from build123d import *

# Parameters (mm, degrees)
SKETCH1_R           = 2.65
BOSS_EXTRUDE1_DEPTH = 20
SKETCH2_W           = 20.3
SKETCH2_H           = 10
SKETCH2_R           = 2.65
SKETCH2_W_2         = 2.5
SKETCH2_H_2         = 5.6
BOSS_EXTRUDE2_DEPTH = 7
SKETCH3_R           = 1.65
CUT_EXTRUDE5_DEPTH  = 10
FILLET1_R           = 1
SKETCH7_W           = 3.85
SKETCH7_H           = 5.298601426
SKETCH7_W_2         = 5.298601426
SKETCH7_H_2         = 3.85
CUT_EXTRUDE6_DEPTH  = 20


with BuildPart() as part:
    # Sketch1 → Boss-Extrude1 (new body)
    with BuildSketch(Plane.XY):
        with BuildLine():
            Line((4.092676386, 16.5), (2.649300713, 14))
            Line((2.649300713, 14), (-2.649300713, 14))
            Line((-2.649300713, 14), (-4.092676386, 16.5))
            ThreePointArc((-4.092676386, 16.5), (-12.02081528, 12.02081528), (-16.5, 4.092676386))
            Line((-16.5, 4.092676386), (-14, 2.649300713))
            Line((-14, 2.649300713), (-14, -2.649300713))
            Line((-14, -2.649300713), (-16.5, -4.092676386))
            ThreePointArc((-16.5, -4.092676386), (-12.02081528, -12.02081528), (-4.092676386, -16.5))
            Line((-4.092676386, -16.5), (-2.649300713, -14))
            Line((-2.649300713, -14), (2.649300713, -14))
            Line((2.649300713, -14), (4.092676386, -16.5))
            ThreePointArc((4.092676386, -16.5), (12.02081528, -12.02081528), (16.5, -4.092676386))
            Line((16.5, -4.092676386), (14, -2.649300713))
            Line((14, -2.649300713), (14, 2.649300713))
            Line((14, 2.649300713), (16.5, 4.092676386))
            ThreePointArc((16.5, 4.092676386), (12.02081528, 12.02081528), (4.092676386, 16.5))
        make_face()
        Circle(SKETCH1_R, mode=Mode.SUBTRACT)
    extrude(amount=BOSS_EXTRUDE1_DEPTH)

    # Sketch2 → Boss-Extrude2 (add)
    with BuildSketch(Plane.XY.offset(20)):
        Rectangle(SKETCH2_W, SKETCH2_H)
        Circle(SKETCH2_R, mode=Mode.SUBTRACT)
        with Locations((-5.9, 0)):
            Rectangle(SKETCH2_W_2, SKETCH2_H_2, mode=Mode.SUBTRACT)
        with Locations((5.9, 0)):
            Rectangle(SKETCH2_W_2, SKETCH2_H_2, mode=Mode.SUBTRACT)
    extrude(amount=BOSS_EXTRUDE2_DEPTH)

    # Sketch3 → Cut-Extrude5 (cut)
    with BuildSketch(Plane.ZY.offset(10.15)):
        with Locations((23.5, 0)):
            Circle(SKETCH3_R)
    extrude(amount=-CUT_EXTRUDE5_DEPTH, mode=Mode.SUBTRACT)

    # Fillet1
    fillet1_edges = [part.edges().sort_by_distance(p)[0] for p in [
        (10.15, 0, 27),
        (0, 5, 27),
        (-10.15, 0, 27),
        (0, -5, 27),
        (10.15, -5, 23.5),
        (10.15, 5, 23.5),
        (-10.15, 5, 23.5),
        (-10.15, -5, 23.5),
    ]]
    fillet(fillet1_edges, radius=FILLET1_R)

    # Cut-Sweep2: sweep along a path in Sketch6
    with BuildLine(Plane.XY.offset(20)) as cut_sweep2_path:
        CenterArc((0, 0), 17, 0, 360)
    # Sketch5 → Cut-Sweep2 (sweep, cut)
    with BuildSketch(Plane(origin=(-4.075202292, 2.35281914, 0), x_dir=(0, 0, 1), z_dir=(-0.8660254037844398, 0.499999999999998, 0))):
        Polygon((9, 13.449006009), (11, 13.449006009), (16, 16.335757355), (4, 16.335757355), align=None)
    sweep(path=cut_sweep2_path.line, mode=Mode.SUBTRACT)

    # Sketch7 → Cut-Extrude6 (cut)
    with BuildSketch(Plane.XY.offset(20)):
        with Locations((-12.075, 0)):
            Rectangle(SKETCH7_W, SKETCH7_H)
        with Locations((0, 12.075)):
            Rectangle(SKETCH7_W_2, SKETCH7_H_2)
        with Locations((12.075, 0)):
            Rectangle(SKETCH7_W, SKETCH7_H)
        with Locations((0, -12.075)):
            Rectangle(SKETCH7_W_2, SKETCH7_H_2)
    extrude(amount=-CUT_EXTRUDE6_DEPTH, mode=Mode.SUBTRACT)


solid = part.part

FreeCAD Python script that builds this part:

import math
import FreeCAD as App
import Part
import Sketcher
Q = App.Units.Quantity


def edges_at(feature, points):
    """Names of the edges that pass closest to the given points."""
    edges = feature.Shape.Edges
    near = lambda p: min(range(len(edges)), key=lambda i: edges[i].distToShape(Part.Vertex(*p))[0])
    return sorted({f"Edge{near(p) + 1}" for p in points})

doc = App.newDocument("Part")
body = doc.addObject("PartDesign::Body", "Body")

sketch1 = body.newObject("Sketcher::SketchObject", "Sketch")
sketch1.AttachmentSupport = (doc.getObject("XY_Plane"), [""])
sketch1.MapMode = "FlatFace"
sketch1.addGeometry([
    Part.LineSegment(App.Vector(4.092676, 16.5, 0), App.Vector(2.649301, 14, 0)),
    Part.LineSegment(App.Vector(2.649301, 14, 0), App.Vector(-2.649301, 14, 0)),
    Part.LineSegment(App.Vector(-2.649301, 14, 0), App.Vector(-4.092676, 16.5, 0)),
    Part.ArcOfCircle(Part.Circle(App.Vector(0, 0, 0), App.Vector(0, 0, 1), 17), math.radians(103.930555), math.radians(166.069445)),
    Part.LineSegment(App.Vector(-16.5, 4.092676, 0), App.Vector(-14, 2.649301, 0)),
    Part.LineSegment(App.Vector(-14, 2.649301, 0), App.Vector(-14, -2.649301, 0)),
    Part.LineSegment(App.Vector(-14, -2.649301, 0), App.Vector(-16.5, -4.092676, 0)),
    Part.ArcOfCircle(Part.Circle(App.Vector(0, 0, 0), App.Vector(0, 0, 1), 17), math.radians(-166.069445), math.radians(-103.930555)),
    Part.LineSegment(App.Vector(-4.092676, -16.5, 0), App.Vector(-2.649301, -14, 0)),
    Part.LineSegment(App.Vector(-2.649301, -14, 0), App.Vector(2.649301, -14, 0)),
    Part.LineSegment(App.Vector(2.649301, -14, 0), App.Vector(4.092676, -16.5, 0)),
    Part.ArcOfCircle(Part.Circle(App.Vector(0, 0, 0), App.Vector(0, 0, 1), 17), math.radians(-76.069445), math.radians(-13.930555)),
    Part.LineSegment(App.Vector(16.5, -4.092676, 0), App.Vector(14, -2.649301, 0)),
    Part.LineSegment(App.Vector(14, -2.649301, 0), App.Vector(14, 2.649301, 0)),
    Part.LineSegment(App.Vector(14, 2.649301, 0), App.Vector(16.5, 4.092676, 0)),
    Part.ArcOfCircle(Part.Circle(App.Vector(0, 0, 0), App.Vector(0, 0, 1), 17), math.radians(13.930555), math.radians(76.069445)),
    Part.Circle(App.Vector(0, 0, 0), App.Vector(0, 0, 1), 2.65),
], False)
sketch1.addConstraint([
    Sketcher.Constraint("Coincident", 0, 2, 1, 1),
    Sketcher.Constraint("Coincident", 1, 2, 2, 1),
    Sketcher.Constraint("Coincident", 2, 2, 3, 1),
    Sketcher.Constraint("Coincident", 3, 2, 4, 1),
    Sketcher.Constraint("Coincident", 4, 2, 5, 1),
    Sketcher.Constraint("Coincident", 5, 2, 6, 1),
    Sketcher.Constraint("Coincident", 6, 2, 7, 1),
    Sketcher.Constraint("Coincident", 7, 2, 8, 1),
    Sketcher.Constraint("Coincident", 8, 2, 9, 1),
    Sketcher.Constraint("Coincident", 9, 2, 10, 1),
    Sketcher.Constraint("Coincident", 10, 2, 11, 1),
    Sketcher.Constraint("Coincident", 11, 2, 12, 1),
    Sketcher.Constraint("Coincident", 12, 2, 13, 1),
    Sketcher.Constraint("Coincident", 13, 2, 14, 1),
    Sketcher.Constraint("Coincident", 14, 2, 15, 1),
    Sketcher.Constraint("Coincident", 15, 2, 0, 1),
    Sketcher.Constraint("Horizontal", 1),
    Sketcher.Constraint("Vertical", 5),
    Sketcher.Constraint("Horizontal", 9),
    Sketcher.Constraint("Vertical", 13),
    Sketcher.Constraint("Coincident", 3, 3, -1, 1),
    Sketcher.Constraint("Coincident", 7, 3, -1, 1),
    Sketcher.Constraint("Coincident", 11, 3, -1, 1),
    Sketcher.Constraint("Coincident", 15, 3, -1, 1),
    Sketcher.Constraint("Coincident", 16, 3, -1, 1),
    Sketcher.Constraint("Equal", 3, 7),
    Sketcher.Constraint("Equal", 7, 11),
    Sketcher.Constraint("Equal", 11, 15),
    Sketcher.Constraint("Symmetric", 0, 2, 8, 2, -1, 1),
    Sketcher.Constraint("Symmetric", 4, 2, 12, 2, -1, 1),
    Sketcher.Constraint("Perpendicular", 0, 4),
    Sketcher.Constraint("Perpendicular", 2, 6),
    Sketcher.Constraint("Perpendicular", 4, 8),
    Sketcher.Constraint("Perpendicular", 6, 10),
    Sketcher.Constraint("Perpendicular", 8, 12),
    Sketcher.Constraint("Perpendicular", 10, 14),
    Sketcher.Constraint("Horizontal", 7, 2, 10, 2),
    Sketcher.Constraint("Horizontal", 6, 2, 11, 2),
    Sketcher.Constraint("Horizontal", 5, 2, 12, 2),
    Sketcher.Constraint("Horizontal", 4, 2, 13, 2),
    Sketcher.Constraint("Horizontal", 2, 2, 15, 2),
    Sketcher.Constraint("Equal", 9, 5),
    Sketcher.Constraint("Equal", 2, 4),
    Sketcher.Constraint("Radius", 3, Q("17 mm")),
    Sketcher.Constraint("Diameter", 16, Q("5.3 mm")),
    Sketcher.Constraint("Angle", 0, Q("-120 deg")),
    Sketcher.Constraint("DistanceY", -1, 1, 0, 2, Q("14 mm")),
    Sketcher.Constraint("DistanceY", -1, 1, 2, 2, Q("16.5 mm")),
])
pad1 = body.newObject("PartDesign::Pad", "Pad")
pad1.Profile = sketch1
pad1.Length = 20

sketch2 = body.newObject("Sketcher::SketchObject", "Sketch001")
sketch2.AttachmentSupport = (doc.getObject("XY_Plane"), [""])
sketch2.MapMode = "FlatFace"
sketch2.AttachmentOffset = App.Placement(App.Vector(0, 0, 20), App.Rotation())
sketch2.addGeometry([
    Part.LineSegment(App.Vector(-10.15, 5, 0), App.Vector(-10.15, -5, 0)),
    Part.LineSegment(App.Vector(-10.15, -5, 0), App.Vector(10.15, -5, 0)),
    Part.LineSegment(App.Vector(10.15, -5, 0), App.Vector(10.15, 5, 0)),
    Part.LineSegment(App.Vector(10.15, 5, 0), App.Vector(-10.15, 5, 0)),
    Part.LineSegment(App.Vector(-4.65, -2.8, 0), App.Vector(-7.15, -2.8, 0)),
    Part.LineSegment(App.Vector(-7.15, -2.8, 0), App.Vector(-7.15, 2.8, 0)),
    Part.LineSegment(App.Vector(-7.15, 2.8, 0), App.Vector(-4.65, 2.8, 0)),
    Part.LineSegment(App.Vector(-4.65, 2.8, 0), App.Vector(-4.65, -2.8, 0)),
    Part.Circle(App.Vector(0, 0, 0), App.Vector(0, 0, 1), 2.65),
    Part.LineSegment(App.Vector(7.15, -2.8, 0), App.Vector(4.65, -2.8, 0)),
    Part.LineSegment(App.Vector(4.65, -2.8, 0), App.Vector(4.65, 2.8, 0)),
    Part.LineSegment(App.Vector(4.65, 2.8, 0), App.Vector(7.15, 2.8, 0)),
    Part.LineSegment(App.Vector(7.15, 2.8, 0), App.Vector(7.15, -2.8, 0)),
], False)
sketch2.addConstraint([
    Sketcher.Constraint("Coincident", 0, 2, 1, 1),
    Sketcher.Constraint("Coincident", 1, 2, 2, 1),
    Sketcher.Constraint("Coincident", 2, 2, 3, 1),
    Sketcher.Constraint("Coincident", 3, 2, 0, 1),
    Sketcher.Constraint("Coincident", 4, 2, 5, 1),
    Sketcher.Constraint("Coincident", 5, 2, 6, 1),
    Sketcher.Constraint("Coincident", 6, 2, 7, 1),
    Sketcher.Constraint("Coincident", 7, 2, 4, 1),
    Sketcher.Constraint("Coincident", 9, 2, 10, 1),
    Sketcher.Constraint("Coincident", 10, 2, 11, 1),
    Sketcher.Constraint("Coincident", 11, 2, 12, 1),
    Sketcher.Constraint("Coincident", 12, 2, 9, 1),
    Sketcher.Constraint("Vertical", 0),
    Sketcher.Constraint("Horizontal", 1),
    Sketcher.Constraint("Vertical", 2),
    Sketcher.Constraint("Horizontal", 3),
    Sketcher.Constraint("Horizontal", 4),
    Sketcher.Constraint("Vertical", 5),
    Sketcher.Constraint("Horizontal", 6),
    Sketcher.Constraint("Vertical", 7),
    Sketcher.Constraint("Horizontal", 9),
    Sketcher.Constraint("Vertical", 10),
    Sketcher.Constraint("Horizontal", 11),
    Sketcher.Constraint("Vertical", 12),
    Sketcher.Constraint("Coincident", 8, 3, -1, 1),
    Sketcher.Constraint("Symmetric", 0, 2, 2, 2, -1, 1),
    Sketcher.Constraint("Symmetric", 6, 2, 9, 2, -1, 1),
    Sketcher.Constraint("Symmetric", 4, 2, 11, 2, -1, 1),
    Sketcher.Constraint("Horizontal", 7, 2, 9, 2),
    Sketcher.Constraint("Diameter", 8, Q("5.3 mm")),
    Sketcher.Constraint("DistanceY", 0, 2, 0, 1, Q("10 mm")),
    Sketcher.Constraint("DistanceX", 1, 1, 1, 2, Q("20.3 mm")),
    Sketcher.Constraint("DistanceX", 4, 2, 4, 1, Q("2.5 mm")),
    Sketcher.Constraint("DistanceY", 5, 1, 5, 2, Q("5.6 mm")),
    Sketcher.Constraint("DistanceX", 0, 2, 4, 2, Q("3 mm")),
])
pad2 = body.newObject("PartDesign::Pad", "Pad001")
pad2.Profile = sketch2
pad2.Length = 7

sketch3 = body.newObject("Sketcher::SketchObject", "Sketch002")
sketch3.AttachmentSupport = (doc.getObject("YZ_Plane"), [""])
sketch3.MapMode = "FlatFace"
sketch3.AttachmentOffset = App.Placement(App.Vector(0, 0, -10.15), App.Rotation())
sketch3.addGeometry(Part.Circle(App.Vector(0, 23.5, 0), App.Vector(0, 0, 1), 1.65), False)
sketch3.addConstraint([
    Sketcher.Constraint("PointOnObject", 0, 3, -2),
    Sketcher.Constraint("Diameter", 0, Q("3.3 mm")),
    Sketcher.Constraint("DistanceY", -1, 1, 0, 3, Q("23.5 mm")),
])
pocket1 = body.newObject("PartDesign::Pocket", "Pocket")
pocket1.Profile = sketch3
pocket1.Length = 10
pocket1.Reversed = True
doc.recompute()

fillet = body.newObject("PartDesign::Fillet", "Fillet")
fillet.Base = (pocket1, edges_at(pocket1, [
    (10.15, 0, 27),
    (0, 5, 27),
    (-10.15, 0, 27),
    (0, -5, 27),
    (10.15, -5, 23.5),
    (10.15, 5, 23.5),
    (-10.15, 5, 23.5),
    (-10.15, -5, 23.5),
]))
fillet.Radius = 1

sketch4 = body.newObject("Sketcher::SketchObject", "Sketch003")
sketch4.Placement = App.Placement(App.Vector(-4.075202, 2.352819, 0), App.Rotation(App.Vector(0, 0, 1), App.Vector(0.5, 0.866025404, 0), App.Vector(-0.866025404, 0.5, 0), "ZXY"))
sketch4.addGeometry([
    Part.LineSegment(App.Vector(9, 13.449006, 0), App.Vector(11, 13.449006, 0)),
    Part.LineSegment(App.Vector(11, 13.449006, 0), App.Vector(16, 16.335757, 0)),
    Part.LineSegment(App.Vector(16, 16.335757, 0), App.Vector(4, 16.335757, 0)),
    Part.LineSegment(App.Vector(4, 16.335757, 0), App.Vector(9, 13.449006, 0)),
], False)
sketch4.addConstraint([
    Sketcher.Constraint("Coincident", 0, 2, 1, 1),
    Sketcher.Constraint("Coincident", 1, 2, 2, 1),
    Sketcher.Constraint("Coincident", 2, 2, 3, 1),
    Sketcher.Constraint("Coincident", 3, 2, 0, 1),
    Sketcher.Constraint("Horizontal", 0),
    Sketcher.Constraint("Horizontal", 2),
    Sketcher.Constraint("Equal", 1, 3),
    Sketcher.Constraint("DistanceX", 0, 1, 0, 2, Q("2 mm")),
    Sketcher.Constraint("DistanceX", 2, 2, 2, 1, Q("12 mm")),
    Sketcher.Constraint("Angle", 1, Q("30 deg")),
    Sketcher.Constraint("DistanceX", -1, 1, 0, 2, Q("11 mm")),
    Sketcher.Constraint("DistanceY", -1, 1, 0, 2, Q("13.449006 mm")),
])

sketch5 = body.newObject("Sketcher::SketchObject", "Sketch004")
sketch5.AttachmentSupport = (doc.getObject("XY_Plane"), [""])
sketch5.MapMode = "FlatFace"
sketch5.AttachmentOffset = App.Placement(App.Vector(0, 0, 20), App.Rotation())
sketch5.addGeometry(Part.Circle(App.Vector(0, 0, 0), App.Vector(0, 0, 1), 17), False)
sketch5.addConstraint([
    Sketcher.Constraint("Coincident", 0, 3, -1, 1),
    Sketcher.Constraint("Diameter", 0, Q("34 mm")),
])
doc.recompute()

subtractivepipe = body.newObject("PartDesign::SubtractivePipe", "SubtractivePipe")
subtractivepipe.Profile = sketch4
subtractivepipe.Spine = (sketch5, ["Edge1"])

sketch6 = body.newObject("Sketcher::SketchObject", "Sketch005")
sketch6.AttachmentSupport = (doc.getObject("XY_Plane"), [""])
sketch6.MapMode = "FlatFace"
sketch6.AttachmentOffset = App.Placement(App.Vector(0, 0, 20), App.Rotation())
sketch6.addGeometry([
    Part.LineSegment(App.Vector(-14, 2.649301, 0), App.Vector(-14, -2.649301, 0)),
    Part.LineSegment(App.Vector(-14, -2.649301, 0), App.Vector(-10.15, -2.649301, 0)),
    Part.LineSegment(App.Vector(-10.15, -2.649301, 0), App.Vector(-10.15, 2.649301, 0)),
    Part.LineSegment(App.Vector(-10.15, 2.649301, 0), App.Vector(-14, 2.649301, 0)),
    Part.LineSegment(App.Vector(-2.649301, 14, 0), App.Vector(-2.649301, 10.15, 0)),
    Part.LineSegment(App.Vector(-2.649301, 10.15, 0), App.Vector(2.649301, 10.15, 0)),
    Part.LineSegment(App.Vector(2.649301, 10.15, 0), App.Vector(2.649301, 14, 0)),
    Part.LineSegment(App.Vector(2.649301, 14, 0), App.Vector(-2.649301, 14, 0)),
    Part.LineSegment(App.Vector(10.15, 2.649301, 0), App.Vector(10.15, -2.649301, 0)),
    Part.LineSegment(App.Vector(10.15, -2.649301, 0), App.Vector(14, -2.649301, 0)),
    Part.LineSegment(App.Vector(14, -2.649301, 0), App.Vector(14, 2.649301, 0)),
    Part.LineSegment(App.Vector(14, 2.649301, 0), App.Vector(10.15, 2.649301, 0)),
    Part.LineSegment(App.Vector(-2.649301, -10.15, 0), App.Vector(-2.649301, -14, 0)),
    Part.LineSegment(App.Vector(-2.649301, -14, 0), App.Vector(2.649301, -14, 0)),
    Part.LineSegment(App.Vector(2.649301, -14, 0), App.Vector(2.649301, -10.15, 0)),
    Part.LineSegment(App.Vector(2.649301, -10.15, 0), App.Vector(-2.649301, -10.15, 0)),
], False)
sketch6.addConstraint([
    Sketcher.Constraint("Coincident", 0, 2, 1, 1),
    Sketcher.Constraint("Coincident", 1, 2, 2, 1),
    Sketcher.Constraint("Coincident", 2, 2, 3, 1),
    Sketcher.Constraint("Coincident", 3, 2, 0, 1),
    Sketcher.Constraint("Coincident", 4, 2, 5, 1),
    Sketcher.Constraint("Coincident", 5, 2, 6, 1),
    Sketcher.Constraint("Coincident", 6, 2, 7, 1),
    Sketcher.Constraint("Coincident", 7, 2, 4, 1),
    Sketcher.Constraint("Coincident", 8, 2, 9, 1),
    Sketcher.Constraint("Coincident", 9, 2, 10, 1),
    Sketcher.Constraint("Coincident", 10, 2, 11, 1),
    Sketcher.Constraint("Coincident", 11, 2, 8, 1),
    Sketcher.Constraint("Coincident", 12, 2, 13, 1),
    Sketcher.Constraint("Coincident", 13, 2, 14, 1),
    Sketcher.Constraint("Coincident", 14, 2, 15, 1),
    Sketcher.Constraint("Coincident", 15, 2, 12, 1),
    Sketcher.Constraint("Vertical", 0),
    Sketcher.Constraint("Horizontal", 1),
    Sketcher.Constraint("Vertical", 2),
    Sketcher.Constraint("Horizontal", 3),
    Sketcher.Constraint("Vertical", 4),
    Sketcher.Constraint("Horizontal", 5),
    Sketcher.Constraint("Vertical", 6),
    Sketcher.Constraint("Horizontal", 7),
    Sketcher.Constraint("Vertical", 8),
    Sketcher.Constraint("Horizontal", 9),
    Sketcher.Constraint("Vertical", 10),
    Sketcher.Constraint("Horizontal", 11),
    Sketcher.Constraint("Vertical", 12),
    Sketcher.Constraint("Horizontal", 13),
    Sketcher.Constraint("Vertical", 14),
    Sketcher.Constraint("Horizontal", 15),
    Sketcher.Constraint("Symmetric", 2, 2, 8, 2, -1, 1),
    Sketcher.Constraint("Symmetric", 0, 2, 10, 2, -1, 1),
    Sketcher.Constraint("Symmetric", 6, 2, 12, 2, -1, 1),
    Sketcher.Constraint("Symmetric", 4, 2, 14, 2, -1, 1),
    Sketcher.Constraint("Horizontal", 1, 2, 8, 2),
    Sketcher.Constraint("Vertical", 7, 2, 12, 2),
    Sketcher.Constraint("Equal", 15, 0),
    Sketcher.Constraint("Equal", 11, 4),
    Sketcher.Constraint("DistanceX", 0, 2, -1, 1, Q("14 mm")),
    Sketcher.Constraint("DistanceY", -1, 1, 6, 2, Q("14 mm")),
    Sketcher.Constraint("DistanceX", 1, 1, 1, 2, Q("3.85 mm")),
    Sketcher.Constraint("DistanceX", 5, 1, 5, 2, Q("5.298601 mm")),
])
pocket2 = body.newObject("PartDesign::Pocket", "Pocket001")
pocket2.Profile = sketch6
pocket2.Length = 20

doc.recompute()
